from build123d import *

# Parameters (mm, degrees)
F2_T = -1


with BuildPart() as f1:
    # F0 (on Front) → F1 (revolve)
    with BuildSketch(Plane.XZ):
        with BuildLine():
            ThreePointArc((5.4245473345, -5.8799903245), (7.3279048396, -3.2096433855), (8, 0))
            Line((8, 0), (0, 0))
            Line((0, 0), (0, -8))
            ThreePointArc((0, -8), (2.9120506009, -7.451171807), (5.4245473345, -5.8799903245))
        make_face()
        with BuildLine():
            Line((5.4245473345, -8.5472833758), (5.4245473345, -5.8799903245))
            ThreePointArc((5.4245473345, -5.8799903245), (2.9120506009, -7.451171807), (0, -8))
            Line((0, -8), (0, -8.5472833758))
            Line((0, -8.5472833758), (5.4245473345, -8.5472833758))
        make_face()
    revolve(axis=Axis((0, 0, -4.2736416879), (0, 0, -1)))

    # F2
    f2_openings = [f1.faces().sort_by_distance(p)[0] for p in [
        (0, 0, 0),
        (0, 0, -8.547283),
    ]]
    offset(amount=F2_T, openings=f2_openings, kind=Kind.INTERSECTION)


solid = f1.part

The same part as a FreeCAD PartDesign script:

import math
import FreeCAD as App
import Part
import Sketcher
from FreeCAD import Vector
Q = App.Units.Quantity


def faces_at(feature, points):
    """Names of the faces that lie closest to the given points."""
    faces = feature.Shape.Faces
    near = lambda p: min(range(len(faces)), key=lambda i: faces[i].distToShape(Part.Vertex(*p))[0])
    return sorted({f"Face{near(p) + 1}" for p in points})

doc = App.newDocument("Part")
body = doc.addObject("PartDesign::Body", "Body")

sketch1 = body.newObject("Sketcher::SketchObject", "Sketch")
sketch1.AttachmentSupport = (doc.getObject("XZ_Plane"), [""])
sketch1.MapMode = "FlatFace"
sketch1.addGeometry([
    Part.ArcOfCircle(Part.Circle(Vector(0, 0, 0), Vector(0, 0, 1), 8), math.radians(-47.307114), math.radians(0)),
    Part.LineSegment(Vector(8, 0, 0), Vector(0, 0, 0)),
    Part.LineSegment(Vector(0, 0, 0), Vector(0, -8.547283, 0)),
    Part.LineSegment(Vector(0, -8.547283, 0), Vector(5.424547, -8.547283, 0)),
    Part.LineSegment(Vector(5.424547, -8.547283, 0), Vector(5.424547, -5.87999, 0)),
], False)
sketch1.addConstraint([
    Sketcher.Constraint("Coincident", 0, 2, 1, 1),
    Sketcher.Constraint("Coincident", 1, 2, 2, 1),
    Sketcher.Constraint("Coincident", 2, 2, 3, 1),
    Sketcher.Constraint("Coincident", 3, 2, 4, 1),
    Sketcher.Constraint("Coincident", 4, 2, 0, 1),
    Sketcher.Constraint("Horizontal", 1),
    Sketcher.Constraint("Vertical", 2),
    Sketcher.Constraint("Horizontal", 3),
    Sketcher.Constraint("Vertical", 4),
    Sketcher.Constraint("Coincident", 0, 3, -1, 1),
    Sketcher.Constraint("Coincident", 1, 2, -1, 1),
    Sketcher.Constraint("Radius", 0, Q("8 mm")),
    Sketcher.Constraint("DistanceX", 3, 1, 3, 2, Q("5.424547 mm")),
    Sketcher.Constraint("DistanceY", 2, 2, 2, 1, Q("8.547283 mm")),
])
revolution = body.newObject("PartDesign::Revolution", "Revolution")
revolution.Profile = sketch1
revolution.ReferenceAxis = (sketch1, ["V_Axis"])
revolution.Angle = 360
doc.recompute()

thickness = body.newObject("PartDesign::Thickness", "Thickness")
thickness.Base = (revolution, faces_at(revolution, [(0, 0, 0), (0, 0, -8.547)]))
thickness.Value = 1
thickness.Reversed = True
thickness.Join = "Intersection"

doc.recompute()
